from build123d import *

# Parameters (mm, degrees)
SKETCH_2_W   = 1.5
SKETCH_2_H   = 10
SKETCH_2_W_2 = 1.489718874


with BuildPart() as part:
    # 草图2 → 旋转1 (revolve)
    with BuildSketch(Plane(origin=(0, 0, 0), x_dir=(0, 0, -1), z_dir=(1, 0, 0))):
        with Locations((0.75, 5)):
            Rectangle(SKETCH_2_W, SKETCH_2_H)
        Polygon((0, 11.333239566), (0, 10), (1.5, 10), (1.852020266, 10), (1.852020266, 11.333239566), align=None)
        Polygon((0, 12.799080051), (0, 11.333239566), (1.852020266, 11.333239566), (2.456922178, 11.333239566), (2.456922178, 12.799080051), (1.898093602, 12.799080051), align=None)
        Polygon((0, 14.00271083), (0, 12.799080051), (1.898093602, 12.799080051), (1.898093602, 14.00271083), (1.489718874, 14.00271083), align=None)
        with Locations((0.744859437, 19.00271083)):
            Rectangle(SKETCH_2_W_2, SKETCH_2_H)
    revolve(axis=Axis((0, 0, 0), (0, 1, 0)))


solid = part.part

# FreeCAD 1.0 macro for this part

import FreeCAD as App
import Part
import Sketcher
from FreeCAD import Vector
Q = App.Units.Quantity

doc = App.newDocument("Part")
params = doc.addObject("Spreadsheet::Sheet", "Params")
for row, (alias, value) in enumerate([
    ("sketch1_width", "10 mm"),
    ("sketch1_height", "1.5 mm"),
    ("revolution_angle", "360 deg"),
], start=1):
    params.set(f"A{row}", alias)
    params.set(f"B{row}", "=" + value)
    params.setAlias(f"B{row}", alias)

body = doc.addObject("PartDesign::Body", "Body")

# Sketch on YZ plane
sketch1 = body.newObject("Sketcher::SketchObject", "Sketch")
sketch1.AttachmentSupport = (doc.getObject("YZ_Plane"), [""])
sketch1.MapMode = "FlatFace"
sketch1.addGeometry([
    Part.LineSegment(Vector(0, 0, 0), Vector(0, -1.5, 0)),  # 0
    Part.LineSegment(Vector(0, -1.5, 0), Vector(10, -1.5, 0)),  # 1
    Part.LineSegment(Vector(10, -1.5, 0), Vector(10, -1.85, 0)),  # 2
    Part.LineSegment(Vector(10, -1.85, 0), Vector(11.33, -1.85, 0)),  # 3
    Part.LineSegment(Vector(11.33, -1.85, 0), Vector(11.33, -2.46, 0)),  # 4
    Part.LineSegment(Vector(11.33, -2.46, 0), Vector(12.8, -2.46, 0)),  # 5
    Part.LineSegment(Vector(12.8, -2.46, 0), Vector(12.8, -1.9, 0)),  # 6
    Part.LineSegment(Vector(12.8, -1.9, 0), Vector(14, -1.9, 0)),  # 7
    Part.LineSegment(Vector(14, -1.9, 0), Vector(14, -1.49, 0)),  # 8
    Part.LineSegment(Vector(14, -1.49, 0), Vector(24, -1.49, 0)),  # 9
    Part.LineSegment(Vector(24, -1.49, 0), Vector(24, 0, 0)),  # 10
    Part.LineSegment(Vector(24, 0, 0), Vector(0, 0, 0)),  # 11
], False)
sketch1.addConstraint([
    Sketcher.Constraint("Coincident", 0, 2, 1, 1),
    Sketcher.Constraint("Coincident", 1, 2, 2, 1),
    Sketcher.Constraint("Coincident", 2, 2, 3, 1),
    Sketcher.Constraint("Coincident", 3, 2, 4, 1),
    Sketcher.Constraint("Coincident", 4, 2, 5, 1),
    Sketcher.Constraint("Coincident", 5, 2, 6, 1),
    Sketcher.Constraint("Coincident", 6, 2, 7, 1),
    Sketcher.Constraint("Coincident", 7, 2, 8, 1),
    Sketcher.Constraint("Coincident", 8, 2, 9, 1),
    Sketcher.Constraint("Coincident", 9, 2, 10, 1),
    Sketcher.Constraint("Coincident", 10, 2, 11, 1),
    Sketcher.Constraint("Coincident", 11, 2, 0, 1),
    Sketcher.Constraint("Vertical", 0),
    Sketcher.Constraint("Horizontal", 1),
    Sketcher.Constraint("Vertical", 2),
    Sketcher.Constraint("Horizontal", 3),
    Sketcher.Constraint("Vertical", 4),
    Sketcher.Constraint("Horizontal", 5),
    Sketcher.Constraint("Vertical", 6),
    Sketcher.Constraint("Horizontal", 7),
    Sketcher.Constraint("Vertical", 8),
    Sketcher.Constraint("Horizontal", 9),
    Sketcher.Constraint("Vertical", 10),
    Sketcher.Constraint("Horizontal", 11),
    Sketcher.Constraint("Coincident", 11, 2, -1, 1),
    Sketcher.Constraint("Equal", 1, 9),
    Sketcher.Constraint("DistanceX", 1, 1, 1, 2, Q("10 mm")),
    Sketcher.Constraint("DistanceY", 0, 2, 0, 1, Q("1.5 mm")),
    Sketcher.Constraint("DistanceY", 4, 2, 4, 1, Q("0.604902 mm")),
    Sketcher.Constraint("DistanceX", 3, 1, 3, 2, Q("1.33324 mm")),
    Sketcher.Constraint("DistanceX", 5, 1, 5, 2, Q("1.46584 mm")),
    Sketcher.Constraint("DistanceX", 7, 1, 7, 2, Q("1.203631 mm")),
    Sketcher.Constraint("DistanceY", 2, 2, 2, 1, Q("0.35202 mm")),
    Sketcher.Constraint("DistanceY", 6, 1, 6, 2, Q("0.558829 mm")),
    Sketcher.Constraint("DistanceY", 10, 1, 10, 2, Q("1.489719 mm")),
])
sketch1.setExpression("Constraints[26]", "Params.sketch1_width")
sketch1.setExpression("Constraints[27]", "Params.sketch1_height")
revolution = body.newObject("PartDesign::Revolution", "Revolution")
revolution.Profile = sketch1
revolution.ReferenceAxis = (sketch1, ["H_Axis"])
revolution.setExpression("Angle", "Params.revolution_angle")

doc.recompute()
